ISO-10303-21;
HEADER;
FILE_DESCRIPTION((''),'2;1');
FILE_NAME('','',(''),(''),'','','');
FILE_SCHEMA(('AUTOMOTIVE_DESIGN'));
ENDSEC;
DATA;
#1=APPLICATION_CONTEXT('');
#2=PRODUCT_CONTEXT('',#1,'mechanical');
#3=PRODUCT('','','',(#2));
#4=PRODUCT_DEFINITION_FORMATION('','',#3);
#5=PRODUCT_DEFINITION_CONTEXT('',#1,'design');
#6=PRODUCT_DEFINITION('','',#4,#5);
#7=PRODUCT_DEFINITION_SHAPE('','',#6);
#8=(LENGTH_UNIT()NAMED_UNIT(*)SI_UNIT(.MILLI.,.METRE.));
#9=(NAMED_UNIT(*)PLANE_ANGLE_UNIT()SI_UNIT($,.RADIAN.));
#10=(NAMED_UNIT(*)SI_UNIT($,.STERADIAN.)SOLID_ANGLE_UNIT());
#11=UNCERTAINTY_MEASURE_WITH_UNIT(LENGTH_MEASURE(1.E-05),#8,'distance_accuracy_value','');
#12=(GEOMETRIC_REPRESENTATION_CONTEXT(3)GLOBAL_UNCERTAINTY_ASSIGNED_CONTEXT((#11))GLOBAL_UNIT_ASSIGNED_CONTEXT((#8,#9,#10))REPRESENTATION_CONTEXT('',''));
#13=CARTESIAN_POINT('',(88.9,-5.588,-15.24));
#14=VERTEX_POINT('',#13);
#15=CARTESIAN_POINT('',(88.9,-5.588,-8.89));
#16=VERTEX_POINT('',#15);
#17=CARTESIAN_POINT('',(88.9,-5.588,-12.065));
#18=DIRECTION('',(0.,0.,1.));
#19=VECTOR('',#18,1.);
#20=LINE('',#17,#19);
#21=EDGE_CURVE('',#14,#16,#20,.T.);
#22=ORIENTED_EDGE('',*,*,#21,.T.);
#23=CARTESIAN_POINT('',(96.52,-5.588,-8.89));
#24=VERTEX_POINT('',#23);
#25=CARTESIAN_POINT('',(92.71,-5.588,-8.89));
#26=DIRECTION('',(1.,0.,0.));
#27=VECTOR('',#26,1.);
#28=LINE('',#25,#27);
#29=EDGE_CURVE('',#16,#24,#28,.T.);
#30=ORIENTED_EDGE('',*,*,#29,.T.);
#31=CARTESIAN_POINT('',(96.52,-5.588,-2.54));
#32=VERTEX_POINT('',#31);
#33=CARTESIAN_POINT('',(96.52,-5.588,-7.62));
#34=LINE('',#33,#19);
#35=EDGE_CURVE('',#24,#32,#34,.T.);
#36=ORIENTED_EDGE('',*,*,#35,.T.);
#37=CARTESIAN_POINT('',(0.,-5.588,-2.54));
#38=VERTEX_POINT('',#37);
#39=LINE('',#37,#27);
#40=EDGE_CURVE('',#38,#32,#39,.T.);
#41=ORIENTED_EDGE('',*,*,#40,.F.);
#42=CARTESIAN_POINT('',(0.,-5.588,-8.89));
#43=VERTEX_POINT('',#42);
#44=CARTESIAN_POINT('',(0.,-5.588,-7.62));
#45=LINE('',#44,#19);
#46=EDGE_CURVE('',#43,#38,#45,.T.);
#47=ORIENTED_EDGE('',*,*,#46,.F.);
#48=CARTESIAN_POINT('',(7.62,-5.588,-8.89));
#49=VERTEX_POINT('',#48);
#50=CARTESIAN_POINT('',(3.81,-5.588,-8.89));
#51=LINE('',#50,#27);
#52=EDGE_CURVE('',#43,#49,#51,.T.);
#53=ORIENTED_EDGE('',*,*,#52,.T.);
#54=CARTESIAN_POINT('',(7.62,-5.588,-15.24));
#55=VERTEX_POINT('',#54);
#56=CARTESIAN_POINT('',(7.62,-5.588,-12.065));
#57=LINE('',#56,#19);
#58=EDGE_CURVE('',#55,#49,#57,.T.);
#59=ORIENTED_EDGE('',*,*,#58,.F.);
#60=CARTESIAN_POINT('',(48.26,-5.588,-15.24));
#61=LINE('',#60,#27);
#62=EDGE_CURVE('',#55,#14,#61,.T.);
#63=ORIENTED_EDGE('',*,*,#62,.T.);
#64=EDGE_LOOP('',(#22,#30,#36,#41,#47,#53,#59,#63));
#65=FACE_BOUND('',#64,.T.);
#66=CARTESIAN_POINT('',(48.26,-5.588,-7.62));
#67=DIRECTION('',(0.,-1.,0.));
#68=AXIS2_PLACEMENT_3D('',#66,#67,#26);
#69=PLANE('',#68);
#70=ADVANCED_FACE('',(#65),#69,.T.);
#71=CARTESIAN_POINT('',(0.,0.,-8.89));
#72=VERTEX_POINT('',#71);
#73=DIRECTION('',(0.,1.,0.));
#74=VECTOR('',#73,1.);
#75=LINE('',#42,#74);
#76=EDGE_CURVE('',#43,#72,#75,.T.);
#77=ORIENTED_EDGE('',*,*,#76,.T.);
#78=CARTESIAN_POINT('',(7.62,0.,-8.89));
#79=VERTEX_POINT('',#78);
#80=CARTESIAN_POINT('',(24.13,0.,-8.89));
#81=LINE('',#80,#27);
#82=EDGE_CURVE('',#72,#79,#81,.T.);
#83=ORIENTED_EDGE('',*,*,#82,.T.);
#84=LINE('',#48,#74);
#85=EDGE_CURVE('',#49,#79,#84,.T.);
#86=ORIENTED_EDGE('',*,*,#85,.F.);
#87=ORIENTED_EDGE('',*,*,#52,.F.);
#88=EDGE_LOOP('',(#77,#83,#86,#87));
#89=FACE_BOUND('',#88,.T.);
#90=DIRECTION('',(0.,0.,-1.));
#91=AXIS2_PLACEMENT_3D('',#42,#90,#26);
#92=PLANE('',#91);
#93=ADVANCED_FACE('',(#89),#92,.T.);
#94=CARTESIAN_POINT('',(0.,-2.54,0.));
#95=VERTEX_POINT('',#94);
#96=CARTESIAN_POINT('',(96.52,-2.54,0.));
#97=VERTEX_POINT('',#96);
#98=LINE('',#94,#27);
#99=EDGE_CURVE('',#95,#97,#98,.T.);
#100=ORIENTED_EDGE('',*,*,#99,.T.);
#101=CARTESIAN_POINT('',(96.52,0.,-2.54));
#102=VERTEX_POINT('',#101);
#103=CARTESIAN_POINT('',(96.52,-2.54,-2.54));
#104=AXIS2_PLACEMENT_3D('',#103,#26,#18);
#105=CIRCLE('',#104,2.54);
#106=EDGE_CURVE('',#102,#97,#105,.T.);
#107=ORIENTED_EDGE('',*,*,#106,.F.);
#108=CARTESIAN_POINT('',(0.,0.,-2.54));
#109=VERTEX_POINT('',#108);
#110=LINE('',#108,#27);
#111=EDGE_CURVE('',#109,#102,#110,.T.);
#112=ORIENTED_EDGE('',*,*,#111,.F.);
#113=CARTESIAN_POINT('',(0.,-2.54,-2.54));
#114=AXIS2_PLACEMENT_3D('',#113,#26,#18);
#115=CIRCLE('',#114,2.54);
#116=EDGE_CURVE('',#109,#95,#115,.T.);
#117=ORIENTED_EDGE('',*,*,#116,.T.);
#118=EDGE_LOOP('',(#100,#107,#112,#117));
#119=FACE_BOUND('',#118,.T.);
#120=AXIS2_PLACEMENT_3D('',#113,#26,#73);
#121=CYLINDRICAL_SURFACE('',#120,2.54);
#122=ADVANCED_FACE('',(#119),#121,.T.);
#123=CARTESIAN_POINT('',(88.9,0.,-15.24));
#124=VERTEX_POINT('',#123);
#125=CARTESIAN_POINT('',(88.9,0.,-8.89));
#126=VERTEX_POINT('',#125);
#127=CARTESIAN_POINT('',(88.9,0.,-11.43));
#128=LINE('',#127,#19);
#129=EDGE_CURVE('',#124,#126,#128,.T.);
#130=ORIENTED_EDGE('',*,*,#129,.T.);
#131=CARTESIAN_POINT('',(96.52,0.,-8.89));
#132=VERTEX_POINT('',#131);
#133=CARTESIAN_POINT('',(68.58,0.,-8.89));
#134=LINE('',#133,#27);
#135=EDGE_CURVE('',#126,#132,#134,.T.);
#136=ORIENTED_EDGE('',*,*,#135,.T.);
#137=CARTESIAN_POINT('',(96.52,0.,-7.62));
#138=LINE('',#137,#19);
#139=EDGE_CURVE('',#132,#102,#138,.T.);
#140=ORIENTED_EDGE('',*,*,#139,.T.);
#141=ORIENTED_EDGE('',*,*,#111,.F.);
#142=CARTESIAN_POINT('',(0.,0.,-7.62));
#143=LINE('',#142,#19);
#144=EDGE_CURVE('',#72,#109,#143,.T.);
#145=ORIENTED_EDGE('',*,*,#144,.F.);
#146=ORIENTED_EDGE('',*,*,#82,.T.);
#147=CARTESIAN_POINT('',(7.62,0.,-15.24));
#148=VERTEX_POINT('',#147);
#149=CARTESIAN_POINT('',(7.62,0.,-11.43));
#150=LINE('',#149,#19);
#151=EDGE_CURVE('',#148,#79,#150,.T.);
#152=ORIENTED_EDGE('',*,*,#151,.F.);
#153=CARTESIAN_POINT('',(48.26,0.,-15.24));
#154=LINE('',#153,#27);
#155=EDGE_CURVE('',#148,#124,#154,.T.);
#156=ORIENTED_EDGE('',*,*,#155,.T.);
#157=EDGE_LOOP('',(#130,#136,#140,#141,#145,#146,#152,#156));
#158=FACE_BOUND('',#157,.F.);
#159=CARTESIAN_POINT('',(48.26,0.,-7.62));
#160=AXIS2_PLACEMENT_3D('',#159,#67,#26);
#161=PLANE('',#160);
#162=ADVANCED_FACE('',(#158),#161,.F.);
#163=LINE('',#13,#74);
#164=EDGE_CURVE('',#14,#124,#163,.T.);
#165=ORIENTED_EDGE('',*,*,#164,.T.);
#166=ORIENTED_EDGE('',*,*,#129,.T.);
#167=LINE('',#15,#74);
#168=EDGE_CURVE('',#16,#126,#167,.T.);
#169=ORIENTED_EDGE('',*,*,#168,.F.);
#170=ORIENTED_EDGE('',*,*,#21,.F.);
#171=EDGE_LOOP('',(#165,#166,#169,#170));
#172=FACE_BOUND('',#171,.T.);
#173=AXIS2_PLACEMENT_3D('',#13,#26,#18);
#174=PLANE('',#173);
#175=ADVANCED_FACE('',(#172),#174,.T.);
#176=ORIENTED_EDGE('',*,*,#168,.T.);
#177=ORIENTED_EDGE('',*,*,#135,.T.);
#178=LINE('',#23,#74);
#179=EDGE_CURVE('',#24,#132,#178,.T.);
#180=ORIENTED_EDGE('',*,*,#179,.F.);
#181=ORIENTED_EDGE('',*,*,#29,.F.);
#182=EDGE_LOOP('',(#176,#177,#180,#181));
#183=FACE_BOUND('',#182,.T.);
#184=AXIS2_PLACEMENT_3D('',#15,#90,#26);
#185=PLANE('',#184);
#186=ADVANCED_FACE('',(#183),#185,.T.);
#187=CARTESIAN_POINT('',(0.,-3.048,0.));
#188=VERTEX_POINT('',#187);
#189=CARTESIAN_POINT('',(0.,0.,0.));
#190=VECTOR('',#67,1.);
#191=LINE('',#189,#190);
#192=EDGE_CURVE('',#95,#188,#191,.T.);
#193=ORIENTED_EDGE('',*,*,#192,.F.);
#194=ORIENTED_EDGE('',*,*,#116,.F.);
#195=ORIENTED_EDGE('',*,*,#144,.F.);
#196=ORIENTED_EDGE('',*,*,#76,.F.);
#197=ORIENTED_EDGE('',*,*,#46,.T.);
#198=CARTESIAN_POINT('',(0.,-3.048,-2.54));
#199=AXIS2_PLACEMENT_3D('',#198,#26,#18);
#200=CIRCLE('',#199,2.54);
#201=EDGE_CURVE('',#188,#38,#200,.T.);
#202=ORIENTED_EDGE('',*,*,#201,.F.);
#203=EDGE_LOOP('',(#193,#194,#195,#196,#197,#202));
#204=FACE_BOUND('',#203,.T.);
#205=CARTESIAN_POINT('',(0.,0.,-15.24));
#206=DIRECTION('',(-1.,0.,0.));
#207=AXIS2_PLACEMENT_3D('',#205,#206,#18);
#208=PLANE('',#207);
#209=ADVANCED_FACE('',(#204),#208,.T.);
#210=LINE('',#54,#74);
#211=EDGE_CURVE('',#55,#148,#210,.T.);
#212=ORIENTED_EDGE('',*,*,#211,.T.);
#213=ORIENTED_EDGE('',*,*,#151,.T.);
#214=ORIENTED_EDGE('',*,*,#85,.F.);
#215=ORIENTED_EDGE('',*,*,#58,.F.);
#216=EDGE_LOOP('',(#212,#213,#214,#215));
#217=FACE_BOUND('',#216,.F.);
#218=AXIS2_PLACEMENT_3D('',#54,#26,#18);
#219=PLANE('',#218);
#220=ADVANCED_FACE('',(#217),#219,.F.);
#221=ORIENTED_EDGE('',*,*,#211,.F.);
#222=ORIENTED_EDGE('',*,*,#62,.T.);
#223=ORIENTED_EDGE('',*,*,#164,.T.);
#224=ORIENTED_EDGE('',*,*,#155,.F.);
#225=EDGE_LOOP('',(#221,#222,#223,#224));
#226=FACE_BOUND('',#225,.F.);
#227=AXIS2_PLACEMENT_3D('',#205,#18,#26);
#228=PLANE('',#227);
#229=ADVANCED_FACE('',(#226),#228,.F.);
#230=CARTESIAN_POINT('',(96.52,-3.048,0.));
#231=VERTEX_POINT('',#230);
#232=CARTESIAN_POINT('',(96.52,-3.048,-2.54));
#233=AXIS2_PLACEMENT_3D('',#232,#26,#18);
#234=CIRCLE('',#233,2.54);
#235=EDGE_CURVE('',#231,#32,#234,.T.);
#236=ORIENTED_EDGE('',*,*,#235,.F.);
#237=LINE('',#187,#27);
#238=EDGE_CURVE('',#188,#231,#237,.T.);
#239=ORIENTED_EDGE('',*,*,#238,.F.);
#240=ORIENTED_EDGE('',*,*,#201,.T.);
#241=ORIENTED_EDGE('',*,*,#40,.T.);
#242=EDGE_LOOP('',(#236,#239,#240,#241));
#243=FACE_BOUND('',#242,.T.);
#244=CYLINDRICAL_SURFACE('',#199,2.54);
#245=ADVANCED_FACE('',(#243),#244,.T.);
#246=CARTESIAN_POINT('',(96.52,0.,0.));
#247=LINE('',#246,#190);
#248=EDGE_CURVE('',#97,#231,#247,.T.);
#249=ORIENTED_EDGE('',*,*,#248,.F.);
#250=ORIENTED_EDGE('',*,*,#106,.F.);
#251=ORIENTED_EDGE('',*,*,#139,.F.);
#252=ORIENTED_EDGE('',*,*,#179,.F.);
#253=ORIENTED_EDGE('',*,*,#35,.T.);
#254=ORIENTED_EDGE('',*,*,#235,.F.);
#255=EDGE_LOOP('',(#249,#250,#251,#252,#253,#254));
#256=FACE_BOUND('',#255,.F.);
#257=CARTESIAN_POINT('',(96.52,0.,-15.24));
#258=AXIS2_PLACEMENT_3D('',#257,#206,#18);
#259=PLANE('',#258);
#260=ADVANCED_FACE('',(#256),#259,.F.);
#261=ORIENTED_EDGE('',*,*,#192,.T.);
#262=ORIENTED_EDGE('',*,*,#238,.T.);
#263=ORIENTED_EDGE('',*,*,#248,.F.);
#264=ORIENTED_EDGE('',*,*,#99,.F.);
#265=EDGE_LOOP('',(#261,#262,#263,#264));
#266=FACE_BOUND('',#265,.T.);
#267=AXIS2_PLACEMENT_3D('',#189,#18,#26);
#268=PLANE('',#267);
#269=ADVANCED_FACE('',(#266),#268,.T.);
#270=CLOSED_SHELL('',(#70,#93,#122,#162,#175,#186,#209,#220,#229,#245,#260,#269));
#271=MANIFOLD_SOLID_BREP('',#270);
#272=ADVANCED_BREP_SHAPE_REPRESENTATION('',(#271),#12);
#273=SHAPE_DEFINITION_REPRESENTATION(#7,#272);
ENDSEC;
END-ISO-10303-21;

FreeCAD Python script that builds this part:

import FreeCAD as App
import Part
import Sketcher
from FreeCAD import Vector
Q = App.Units.Quantity


def edges_at(feature, points):
    """Names of the edges that pass closest to the given points."""
    edges = feature.Shape.Edges
    near = lambda p: min(range(len(edges)), key=lambda i: edges[i].distToShape(Part.Vertex(*p))[0])
    return sorted({f"Edge{near(p) + 1}" for p in points})

doc = App.newDocument("Part")
body = doc.addObject("PartDesign::Body", "Body")

# Sketch on XZ plane
sketch1 = body.newObject("Sketcher::SketchObject", "Sketch")
sketch1.AttachmentSupport = (doc.getObject("XZ_Plane"), [""])
sketch1.MapMode = "FlatFace"
sketch1.addGeometry(Part.LineSegment(Vector(0, 0, 0), Vector(0, -15, 0)), False)
sketch1.addGeometry(Part.LineSegment(Vector(0, -15, 0), Vector(97, -15, 0)), False)
sketch1.addGeometry(Part.LineSegment(Vector(97, -15, 0), Vector(97, 0, 0)), False)
sketch1.addGeometry(Part.LineSegment(Vector(97, 0, 0), Vector(0, 0, 0)), False)
sketch1.addConstraint(Sketcher.Constraint("Coincident", 0, 2, 1, 1))
sketch1.addConstraint(Sketcher.Constraint("Coincident", 1, 2, 2, 1))
sketch1.addConstraint(Sketcher.Constraint("Coincident", 2, 2, 3, 1))
sketch1.addConstraint(Sketcher.Constraint("Coincident", 3, 2, 0, 1))
sketch1.addConstraint(Sketcher.Constraint("Vertical", 0))
sketch1.addConstraint(Sketcher.Constraint("Horizontal", 1))
sketch1.addConstraint(Sketcher.Constraint("Vertical", 2))
sketch1.addConstraint(Sketcher.Constraint("Horizontal", 3))
sketch1.addConstraint(Sketcher.Constraint("Coincident", 3, 2, -1, 1))
sketch1.addConstraint(Sketcher.Constraint("DistanceX", 1, 1, 1, 2, Q("3.8 in")))
sketch1.addConstraint(Sketcher.Constraint("DistanceY", 0, 2, 0, 1, Q("0.6 in")))
pad1 = body.newObject("PartDesign::Pad", "Pad")
pad1.Profile = sketch1
pad1.Length = Q("0.22 in")

# Sketch on XZ plane
sketch2 = body.newObject("Sketcher::SketchObject", "Sketch001")
sketch2.AttachmentSupport = (doc.getObject("XZ_Plane"), [""])
sketch2.MapMode = "FlatFace"
sketch2.AttachmentOffset = App.Placement(Vector(0, 0, 0.22 * 25.4), App.Rotation())
sketch2.addGeometry(Part.LineSegment(Vector(89, -9, 0), Vector(89, -15, 0)), False)
sketch2.addGeometry(Part.LineSegment(Vector(89, -15, 0), Vector(97, -15, 0)), False)
sketch2.addGeometry(Part.LineSegment(Vector(97, -15, 0), Vector(97, -9, 0)), False)
sketch2.addGeometry(Part.LineSegment(Vector(97, -9, 0), Vector(89, -9, 0)), False)
sketch2.addGeometry(Part.LineSegment(Vector(0, -9, 0), Vector(0, -15, 0)), False)
sketch2.addGeometry(Part.LineSegment(Vector(0, -15, 0), Vector(8, -15, 0)), False)
sketch2.addGeometry(Part.LineSegment(Vector(8, -15, 0), Vector(8, -9, 0)), False)
sketch2.addGeometry(Part.LineSegment(Vector(8, -9, 0), Vector(0, -9, 0)), False)
sketch2.addConstraint(Sketcher.Constraint("Coincident", 0, 2, 1, 1))
sketch2.addConstraint(Sketcher.Constraint("Coincident", 1, 2, 2, 1))
sketch2.addConstraint(Sketcher.Constraint("Coincident", 2, 2, 3, 1))
sketch2.addConstraint(Sketcher.Constraint("Coincident", 3, 2, 0, 1))
sketch2.addConstraint(Sketcher.Constraint("Coincident", 4, 2, 5, 1))
sketch2.addConstraint(Sketcher.Constraint("Coincident", 5, 2, 6, 1))
sketch2.addConstraint(Sketcher.Constraint("Coincident", 6, 2, 7, 1))
sketch2.addConstraint(Sketcher.Constraint("Coincident", 7, 2, 4, 1))
sketch2.addConstraint(Sketcher.Constraint("Vertical", 0))
sketch2.addConstraint(Sketcher.Constraint("Horizontal", 1))
sketch2.addConstraint(Sketcher.Constraint("Vertical", 2))
sketch2.addConstraint(Sketcher.Constraint("Horizontal", 3))
sketch2.addConstraint(Sketcher.Constraint("Vertical", 4))
sketch2.addConstraint(Sketcher.Constraint("Horizontal", 5))
sketch2.addConstraint(Sketcher.Constraint("Vertical", 6))
sketch2.addConstraint(Sketcher.Constraint("Horizontal", 7))
sketch2.addConstraint(Sketcher.Constraint("PointOnObject", 4, 2, -2))
sketch2.addConstraint(Sketcher.Constraint("Horizontal", 1, 2, 4, 2))
sketch2.addConstraint(Sketcher.Constraint("Horizontal", 3, 2, 6, 2))
sketch2.addConstraint(Sketcher.Constraint("Equal", 3, 5))
sketch2.addConstraint(Sketcher.Constraint("DistanceX", 1, 1, 1, 2, Q("0.3 in")))
sketch2.addConstraint(Sketcher.Constraint("DistanceY", 0, 2, 0, 1, Q("0.25 in")))
sketch2.addConstraint(Sketcher.Constraint("DistanceX", -1, 1, 0, 2, Q("3.5 in")))
sketch2.addConstraint(Sketcher.Constraint("DistanceY", 0, 2, -1, 1, Q("0.6 in")))
pocket1 = body.newObject("PartDesign::Pocket", "Pocket")
pocket1.Profile = sketch2
pocket1.Length = Q("1 in")
doc.recompute()

fillet = body.newObject("PartDesign::Fillet", "Fillet")
fillet.Base = (pocket1, edges_at(pocket1, [(48.26, 0, 0), (48.26, -5.588, 0)]))
fillet.Radius = Q("0.1 in")

doc.recompute()
